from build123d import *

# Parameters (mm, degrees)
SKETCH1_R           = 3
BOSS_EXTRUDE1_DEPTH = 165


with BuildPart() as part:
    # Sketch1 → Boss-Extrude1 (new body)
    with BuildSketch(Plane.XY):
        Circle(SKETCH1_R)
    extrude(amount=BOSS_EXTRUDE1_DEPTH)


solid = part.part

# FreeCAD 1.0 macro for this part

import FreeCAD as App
import Part
import Sketcher

V = App.Vector
Q = App.Units.Quantity

doc = App.newDocument("Part")
params = doc.addObject("Spreadsheet::Sheet", "Params")
for row, (alias, value) in enumerate([
    ("sketch1_diameter", "6 mm"),
    ("pad1_length", "165 mm"),
], start=1):
    params.set(f"A{row}", alias)
    params.set(f"B{row}", "=" + value)
    params.setAlias(f"B{row}", alias)

body = doc.addObject("PartDesign::Body", "Body")

sketch1 = body.newObject("Sketcher::SketchObject", "Sketch")
sketch1.AttachmentSupport = (doc.getObject("XY_Plane"), [""])
sketch1.MapMode = "FlatFace"
sketch1.addGeometry(Part.Circle(V(0, 0, 0), V(0, 0, 1), 3), False)
sketch1.addConstraint([
    Sketcher.Constraint("Coincident", 0, 3, -1, 1),
    Sketcher.Constraint("Diameter", 0, Q("6 mm")),
])
sketch1.setExpression("Constraints[1]", "Params.sketch1_diameter")
pad1 = body.newObject("PartDesign::Pad", "Pad")
pad1.Profile = sketch1
pad1.setExpression("Length", "Params.pad1_length")

doc.recompute()
